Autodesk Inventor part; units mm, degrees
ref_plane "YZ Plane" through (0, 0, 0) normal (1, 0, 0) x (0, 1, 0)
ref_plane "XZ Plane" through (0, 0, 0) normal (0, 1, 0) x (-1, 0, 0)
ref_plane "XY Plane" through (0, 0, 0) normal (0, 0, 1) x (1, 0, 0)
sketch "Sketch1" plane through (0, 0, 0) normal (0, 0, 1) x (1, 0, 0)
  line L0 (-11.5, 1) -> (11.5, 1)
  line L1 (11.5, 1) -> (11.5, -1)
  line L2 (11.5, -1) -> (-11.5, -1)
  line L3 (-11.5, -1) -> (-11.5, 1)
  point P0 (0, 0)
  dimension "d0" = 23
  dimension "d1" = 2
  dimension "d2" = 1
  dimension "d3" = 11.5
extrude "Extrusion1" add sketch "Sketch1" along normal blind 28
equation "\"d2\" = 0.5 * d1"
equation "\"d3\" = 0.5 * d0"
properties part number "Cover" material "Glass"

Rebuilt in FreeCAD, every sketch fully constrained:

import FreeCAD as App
import Part
import Sketcher

doc = App.newDocument("Part")
body = doc.addObject("PartDesign::Body", "Body")

sketch1 = body.newObject("Sketcher::SketchObject", "Sketch")
sketch1.AttachmentSupport = (doc.getObject("XY_Plane"), [""])
sketch1.MapMode = "FlatFace"
sketch1.addGeometry([
    Part.LineSegment(App.Vector(11.5, 1, 0), App.Vector(-11.5, 1, 0)),
    Part.LineSegment(App.Vector(-11.5, 1, 0), App.Vector(-11.5, -1, 0)),
    Part.LineSegment(App.Vector(-11.5, -1, 0), App.Vector(11.5, -1, 0)),
    Part.LineSegment(App.Vector(11.5, -1, 0), App.Vector(11.5, 1, 0)),
], False)
sketch1.addConstraint([
    Sketcher.Constraint("Coincident", 0, 2, 1, 1),
    Sketcher.Constraint("Coincident", 1, 2, 2, 1),
    Sketcher.Constraint("Coincident", 2, 2, 3, 1),
    Sketcher.Constraint("Coincident", 3, 2, 0, 1),
    Sketcher.Constraint("Horizontal", 0),
    Sketcher.Constraint("Vertical", 1),
    Sketcher.Constraint("Horizontal", 2),
    Sketcher.Constraint("Vertical", 3),
    Sketcher.Constraint("Symmetric", 0, 2, 2, 2, -1, 1),
    Sketcher.Constraint("DistanceX", 0, 2, 0, 1, 23.0),
    Sketcher.Constraint("DistanceY", 1, 2, 1, 1, 2.0),
])
pad1 = body.newObject("PartDesign::Pad", "Pad")
pad1.Profile = sketch1
pad1.Length = 28

doc.recompute()
